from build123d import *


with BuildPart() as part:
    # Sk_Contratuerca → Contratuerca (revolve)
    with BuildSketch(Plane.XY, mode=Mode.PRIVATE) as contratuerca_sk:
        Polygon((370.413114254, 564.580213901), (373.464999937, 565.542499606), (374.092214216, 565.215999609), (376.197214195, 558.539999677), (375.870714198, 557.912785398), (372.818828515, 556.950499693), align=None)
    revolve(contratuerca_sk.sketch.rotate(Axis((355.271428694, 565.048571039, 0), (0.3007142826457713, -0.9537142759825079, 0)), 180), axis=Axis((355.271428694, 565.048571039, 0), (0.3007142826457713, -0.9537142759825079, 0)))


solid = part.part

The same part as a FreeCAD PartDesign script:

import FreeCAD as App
import Part
import Sketcher

V = App.Vector
Q = App.Units.Quantity

doc = App.newDocument("Part")
body = doc.addObject("PartDesign::Body", "Body")

sketch1 = body.newObject("Sketcher::SketchObject", "Sketch")
sketch1.AttachmentSupport = (doc.getObject("XY_Plane"), [""])
sketch1.MapMode = "FlatFace"
sketch1.addGeometry([
    Part.LineSegment(V(373.465, 565.5425, 0), V(370.413114, 564.580214, 0)),
    Part.LineSegment(V(370.413114, 564.580214, 0), V(372.818829, 556.9505, 0)),
    Part.LineSegment(V(372.818829, 556.9505, 0), V(375.870714, 557.912785, 0)),
    Part.LineSegment(V(375.870714, 557.912785, 0), V(376.197214, 558.54, 0)),
    Part.LineSegment(V(376.197214, 558.54, 0), V(374.092214, 565.216, 0)),
    Part.LineSegment(V(374.092214, 565.216, 0), V(373.465, 565.5425, 0)),
], False)
sketch1.addGeometry(Part.LineSegment(V(356.775, 560.28, 0), V(359.180714, 552.650285, 0)), True)
sketch1.addConstraint([
    Sketcher.Constraint("Coincident", 0, 2, 1, 1),
    Sketcher.Constraint("Coincident", 1, 2, 2, 1),
    Sketcher.Constraint("Coincident", 2, 2, 3, 1),
    Sketcher.Constraint("Coincident", 3, 2, 4, 1),
    Sketcher.Constraint("Coincident", 4, 2, 5, 1),
    Sketcher.Constraint("Coincident", 5, 2, 0, 1),
    Sketcher.Constraint("Perpendicular", 0, 1),
    Sketcher.Constraint("Perpendicular", 1, 2),
    Sketcher.Constraint("Perpendicular", 2, 4),
    Sketcher.Constraint("Perpendicular", 3, 5),
    Sketcher.Constraint("Parallel", 4, 6),
    Sketcher.Constraint("Equal", 0, 2),
    Sketcher.Constraint("Equal", 3, 5),
    Sketcher.Constraint("Equal", 1, 6),
    Sketcher.Constraint("Distance", 1, Q("8 mm")),
    Sketcher.Constraint("Distance", 4, Q("7 mm")),
    Sketcher.Constraint("Distance", 0, Q("3.2 mm")),
    Sketcher.Constraint("DistanceY", -1, 1, 3, 2, Q("558.54 mm")),
    Sketcher.Constraint("DistanceY", -1, 1, 6, 1, Q("560.28 mm")),
    Sketcher.Constraint("DistanceX", 6, 1, 5, 2, Q("16.69 mm")),
    Sketcher.Constraint("DistanceY", -1, 1, 4, 2, Q("565.216 mm")),
    Sketcher.Constraint("DistanceX", -1, 1, 5, 2, Q("373.465 mm")),
])
revolution = body.newObject("PartDesign::Revolution", "Revolution")
revolution.Profile = sketch1
revolution.ReferenceAxis = (sketch1, ["Axis0"])
revolution.Angle = 360

doc.recompute()
